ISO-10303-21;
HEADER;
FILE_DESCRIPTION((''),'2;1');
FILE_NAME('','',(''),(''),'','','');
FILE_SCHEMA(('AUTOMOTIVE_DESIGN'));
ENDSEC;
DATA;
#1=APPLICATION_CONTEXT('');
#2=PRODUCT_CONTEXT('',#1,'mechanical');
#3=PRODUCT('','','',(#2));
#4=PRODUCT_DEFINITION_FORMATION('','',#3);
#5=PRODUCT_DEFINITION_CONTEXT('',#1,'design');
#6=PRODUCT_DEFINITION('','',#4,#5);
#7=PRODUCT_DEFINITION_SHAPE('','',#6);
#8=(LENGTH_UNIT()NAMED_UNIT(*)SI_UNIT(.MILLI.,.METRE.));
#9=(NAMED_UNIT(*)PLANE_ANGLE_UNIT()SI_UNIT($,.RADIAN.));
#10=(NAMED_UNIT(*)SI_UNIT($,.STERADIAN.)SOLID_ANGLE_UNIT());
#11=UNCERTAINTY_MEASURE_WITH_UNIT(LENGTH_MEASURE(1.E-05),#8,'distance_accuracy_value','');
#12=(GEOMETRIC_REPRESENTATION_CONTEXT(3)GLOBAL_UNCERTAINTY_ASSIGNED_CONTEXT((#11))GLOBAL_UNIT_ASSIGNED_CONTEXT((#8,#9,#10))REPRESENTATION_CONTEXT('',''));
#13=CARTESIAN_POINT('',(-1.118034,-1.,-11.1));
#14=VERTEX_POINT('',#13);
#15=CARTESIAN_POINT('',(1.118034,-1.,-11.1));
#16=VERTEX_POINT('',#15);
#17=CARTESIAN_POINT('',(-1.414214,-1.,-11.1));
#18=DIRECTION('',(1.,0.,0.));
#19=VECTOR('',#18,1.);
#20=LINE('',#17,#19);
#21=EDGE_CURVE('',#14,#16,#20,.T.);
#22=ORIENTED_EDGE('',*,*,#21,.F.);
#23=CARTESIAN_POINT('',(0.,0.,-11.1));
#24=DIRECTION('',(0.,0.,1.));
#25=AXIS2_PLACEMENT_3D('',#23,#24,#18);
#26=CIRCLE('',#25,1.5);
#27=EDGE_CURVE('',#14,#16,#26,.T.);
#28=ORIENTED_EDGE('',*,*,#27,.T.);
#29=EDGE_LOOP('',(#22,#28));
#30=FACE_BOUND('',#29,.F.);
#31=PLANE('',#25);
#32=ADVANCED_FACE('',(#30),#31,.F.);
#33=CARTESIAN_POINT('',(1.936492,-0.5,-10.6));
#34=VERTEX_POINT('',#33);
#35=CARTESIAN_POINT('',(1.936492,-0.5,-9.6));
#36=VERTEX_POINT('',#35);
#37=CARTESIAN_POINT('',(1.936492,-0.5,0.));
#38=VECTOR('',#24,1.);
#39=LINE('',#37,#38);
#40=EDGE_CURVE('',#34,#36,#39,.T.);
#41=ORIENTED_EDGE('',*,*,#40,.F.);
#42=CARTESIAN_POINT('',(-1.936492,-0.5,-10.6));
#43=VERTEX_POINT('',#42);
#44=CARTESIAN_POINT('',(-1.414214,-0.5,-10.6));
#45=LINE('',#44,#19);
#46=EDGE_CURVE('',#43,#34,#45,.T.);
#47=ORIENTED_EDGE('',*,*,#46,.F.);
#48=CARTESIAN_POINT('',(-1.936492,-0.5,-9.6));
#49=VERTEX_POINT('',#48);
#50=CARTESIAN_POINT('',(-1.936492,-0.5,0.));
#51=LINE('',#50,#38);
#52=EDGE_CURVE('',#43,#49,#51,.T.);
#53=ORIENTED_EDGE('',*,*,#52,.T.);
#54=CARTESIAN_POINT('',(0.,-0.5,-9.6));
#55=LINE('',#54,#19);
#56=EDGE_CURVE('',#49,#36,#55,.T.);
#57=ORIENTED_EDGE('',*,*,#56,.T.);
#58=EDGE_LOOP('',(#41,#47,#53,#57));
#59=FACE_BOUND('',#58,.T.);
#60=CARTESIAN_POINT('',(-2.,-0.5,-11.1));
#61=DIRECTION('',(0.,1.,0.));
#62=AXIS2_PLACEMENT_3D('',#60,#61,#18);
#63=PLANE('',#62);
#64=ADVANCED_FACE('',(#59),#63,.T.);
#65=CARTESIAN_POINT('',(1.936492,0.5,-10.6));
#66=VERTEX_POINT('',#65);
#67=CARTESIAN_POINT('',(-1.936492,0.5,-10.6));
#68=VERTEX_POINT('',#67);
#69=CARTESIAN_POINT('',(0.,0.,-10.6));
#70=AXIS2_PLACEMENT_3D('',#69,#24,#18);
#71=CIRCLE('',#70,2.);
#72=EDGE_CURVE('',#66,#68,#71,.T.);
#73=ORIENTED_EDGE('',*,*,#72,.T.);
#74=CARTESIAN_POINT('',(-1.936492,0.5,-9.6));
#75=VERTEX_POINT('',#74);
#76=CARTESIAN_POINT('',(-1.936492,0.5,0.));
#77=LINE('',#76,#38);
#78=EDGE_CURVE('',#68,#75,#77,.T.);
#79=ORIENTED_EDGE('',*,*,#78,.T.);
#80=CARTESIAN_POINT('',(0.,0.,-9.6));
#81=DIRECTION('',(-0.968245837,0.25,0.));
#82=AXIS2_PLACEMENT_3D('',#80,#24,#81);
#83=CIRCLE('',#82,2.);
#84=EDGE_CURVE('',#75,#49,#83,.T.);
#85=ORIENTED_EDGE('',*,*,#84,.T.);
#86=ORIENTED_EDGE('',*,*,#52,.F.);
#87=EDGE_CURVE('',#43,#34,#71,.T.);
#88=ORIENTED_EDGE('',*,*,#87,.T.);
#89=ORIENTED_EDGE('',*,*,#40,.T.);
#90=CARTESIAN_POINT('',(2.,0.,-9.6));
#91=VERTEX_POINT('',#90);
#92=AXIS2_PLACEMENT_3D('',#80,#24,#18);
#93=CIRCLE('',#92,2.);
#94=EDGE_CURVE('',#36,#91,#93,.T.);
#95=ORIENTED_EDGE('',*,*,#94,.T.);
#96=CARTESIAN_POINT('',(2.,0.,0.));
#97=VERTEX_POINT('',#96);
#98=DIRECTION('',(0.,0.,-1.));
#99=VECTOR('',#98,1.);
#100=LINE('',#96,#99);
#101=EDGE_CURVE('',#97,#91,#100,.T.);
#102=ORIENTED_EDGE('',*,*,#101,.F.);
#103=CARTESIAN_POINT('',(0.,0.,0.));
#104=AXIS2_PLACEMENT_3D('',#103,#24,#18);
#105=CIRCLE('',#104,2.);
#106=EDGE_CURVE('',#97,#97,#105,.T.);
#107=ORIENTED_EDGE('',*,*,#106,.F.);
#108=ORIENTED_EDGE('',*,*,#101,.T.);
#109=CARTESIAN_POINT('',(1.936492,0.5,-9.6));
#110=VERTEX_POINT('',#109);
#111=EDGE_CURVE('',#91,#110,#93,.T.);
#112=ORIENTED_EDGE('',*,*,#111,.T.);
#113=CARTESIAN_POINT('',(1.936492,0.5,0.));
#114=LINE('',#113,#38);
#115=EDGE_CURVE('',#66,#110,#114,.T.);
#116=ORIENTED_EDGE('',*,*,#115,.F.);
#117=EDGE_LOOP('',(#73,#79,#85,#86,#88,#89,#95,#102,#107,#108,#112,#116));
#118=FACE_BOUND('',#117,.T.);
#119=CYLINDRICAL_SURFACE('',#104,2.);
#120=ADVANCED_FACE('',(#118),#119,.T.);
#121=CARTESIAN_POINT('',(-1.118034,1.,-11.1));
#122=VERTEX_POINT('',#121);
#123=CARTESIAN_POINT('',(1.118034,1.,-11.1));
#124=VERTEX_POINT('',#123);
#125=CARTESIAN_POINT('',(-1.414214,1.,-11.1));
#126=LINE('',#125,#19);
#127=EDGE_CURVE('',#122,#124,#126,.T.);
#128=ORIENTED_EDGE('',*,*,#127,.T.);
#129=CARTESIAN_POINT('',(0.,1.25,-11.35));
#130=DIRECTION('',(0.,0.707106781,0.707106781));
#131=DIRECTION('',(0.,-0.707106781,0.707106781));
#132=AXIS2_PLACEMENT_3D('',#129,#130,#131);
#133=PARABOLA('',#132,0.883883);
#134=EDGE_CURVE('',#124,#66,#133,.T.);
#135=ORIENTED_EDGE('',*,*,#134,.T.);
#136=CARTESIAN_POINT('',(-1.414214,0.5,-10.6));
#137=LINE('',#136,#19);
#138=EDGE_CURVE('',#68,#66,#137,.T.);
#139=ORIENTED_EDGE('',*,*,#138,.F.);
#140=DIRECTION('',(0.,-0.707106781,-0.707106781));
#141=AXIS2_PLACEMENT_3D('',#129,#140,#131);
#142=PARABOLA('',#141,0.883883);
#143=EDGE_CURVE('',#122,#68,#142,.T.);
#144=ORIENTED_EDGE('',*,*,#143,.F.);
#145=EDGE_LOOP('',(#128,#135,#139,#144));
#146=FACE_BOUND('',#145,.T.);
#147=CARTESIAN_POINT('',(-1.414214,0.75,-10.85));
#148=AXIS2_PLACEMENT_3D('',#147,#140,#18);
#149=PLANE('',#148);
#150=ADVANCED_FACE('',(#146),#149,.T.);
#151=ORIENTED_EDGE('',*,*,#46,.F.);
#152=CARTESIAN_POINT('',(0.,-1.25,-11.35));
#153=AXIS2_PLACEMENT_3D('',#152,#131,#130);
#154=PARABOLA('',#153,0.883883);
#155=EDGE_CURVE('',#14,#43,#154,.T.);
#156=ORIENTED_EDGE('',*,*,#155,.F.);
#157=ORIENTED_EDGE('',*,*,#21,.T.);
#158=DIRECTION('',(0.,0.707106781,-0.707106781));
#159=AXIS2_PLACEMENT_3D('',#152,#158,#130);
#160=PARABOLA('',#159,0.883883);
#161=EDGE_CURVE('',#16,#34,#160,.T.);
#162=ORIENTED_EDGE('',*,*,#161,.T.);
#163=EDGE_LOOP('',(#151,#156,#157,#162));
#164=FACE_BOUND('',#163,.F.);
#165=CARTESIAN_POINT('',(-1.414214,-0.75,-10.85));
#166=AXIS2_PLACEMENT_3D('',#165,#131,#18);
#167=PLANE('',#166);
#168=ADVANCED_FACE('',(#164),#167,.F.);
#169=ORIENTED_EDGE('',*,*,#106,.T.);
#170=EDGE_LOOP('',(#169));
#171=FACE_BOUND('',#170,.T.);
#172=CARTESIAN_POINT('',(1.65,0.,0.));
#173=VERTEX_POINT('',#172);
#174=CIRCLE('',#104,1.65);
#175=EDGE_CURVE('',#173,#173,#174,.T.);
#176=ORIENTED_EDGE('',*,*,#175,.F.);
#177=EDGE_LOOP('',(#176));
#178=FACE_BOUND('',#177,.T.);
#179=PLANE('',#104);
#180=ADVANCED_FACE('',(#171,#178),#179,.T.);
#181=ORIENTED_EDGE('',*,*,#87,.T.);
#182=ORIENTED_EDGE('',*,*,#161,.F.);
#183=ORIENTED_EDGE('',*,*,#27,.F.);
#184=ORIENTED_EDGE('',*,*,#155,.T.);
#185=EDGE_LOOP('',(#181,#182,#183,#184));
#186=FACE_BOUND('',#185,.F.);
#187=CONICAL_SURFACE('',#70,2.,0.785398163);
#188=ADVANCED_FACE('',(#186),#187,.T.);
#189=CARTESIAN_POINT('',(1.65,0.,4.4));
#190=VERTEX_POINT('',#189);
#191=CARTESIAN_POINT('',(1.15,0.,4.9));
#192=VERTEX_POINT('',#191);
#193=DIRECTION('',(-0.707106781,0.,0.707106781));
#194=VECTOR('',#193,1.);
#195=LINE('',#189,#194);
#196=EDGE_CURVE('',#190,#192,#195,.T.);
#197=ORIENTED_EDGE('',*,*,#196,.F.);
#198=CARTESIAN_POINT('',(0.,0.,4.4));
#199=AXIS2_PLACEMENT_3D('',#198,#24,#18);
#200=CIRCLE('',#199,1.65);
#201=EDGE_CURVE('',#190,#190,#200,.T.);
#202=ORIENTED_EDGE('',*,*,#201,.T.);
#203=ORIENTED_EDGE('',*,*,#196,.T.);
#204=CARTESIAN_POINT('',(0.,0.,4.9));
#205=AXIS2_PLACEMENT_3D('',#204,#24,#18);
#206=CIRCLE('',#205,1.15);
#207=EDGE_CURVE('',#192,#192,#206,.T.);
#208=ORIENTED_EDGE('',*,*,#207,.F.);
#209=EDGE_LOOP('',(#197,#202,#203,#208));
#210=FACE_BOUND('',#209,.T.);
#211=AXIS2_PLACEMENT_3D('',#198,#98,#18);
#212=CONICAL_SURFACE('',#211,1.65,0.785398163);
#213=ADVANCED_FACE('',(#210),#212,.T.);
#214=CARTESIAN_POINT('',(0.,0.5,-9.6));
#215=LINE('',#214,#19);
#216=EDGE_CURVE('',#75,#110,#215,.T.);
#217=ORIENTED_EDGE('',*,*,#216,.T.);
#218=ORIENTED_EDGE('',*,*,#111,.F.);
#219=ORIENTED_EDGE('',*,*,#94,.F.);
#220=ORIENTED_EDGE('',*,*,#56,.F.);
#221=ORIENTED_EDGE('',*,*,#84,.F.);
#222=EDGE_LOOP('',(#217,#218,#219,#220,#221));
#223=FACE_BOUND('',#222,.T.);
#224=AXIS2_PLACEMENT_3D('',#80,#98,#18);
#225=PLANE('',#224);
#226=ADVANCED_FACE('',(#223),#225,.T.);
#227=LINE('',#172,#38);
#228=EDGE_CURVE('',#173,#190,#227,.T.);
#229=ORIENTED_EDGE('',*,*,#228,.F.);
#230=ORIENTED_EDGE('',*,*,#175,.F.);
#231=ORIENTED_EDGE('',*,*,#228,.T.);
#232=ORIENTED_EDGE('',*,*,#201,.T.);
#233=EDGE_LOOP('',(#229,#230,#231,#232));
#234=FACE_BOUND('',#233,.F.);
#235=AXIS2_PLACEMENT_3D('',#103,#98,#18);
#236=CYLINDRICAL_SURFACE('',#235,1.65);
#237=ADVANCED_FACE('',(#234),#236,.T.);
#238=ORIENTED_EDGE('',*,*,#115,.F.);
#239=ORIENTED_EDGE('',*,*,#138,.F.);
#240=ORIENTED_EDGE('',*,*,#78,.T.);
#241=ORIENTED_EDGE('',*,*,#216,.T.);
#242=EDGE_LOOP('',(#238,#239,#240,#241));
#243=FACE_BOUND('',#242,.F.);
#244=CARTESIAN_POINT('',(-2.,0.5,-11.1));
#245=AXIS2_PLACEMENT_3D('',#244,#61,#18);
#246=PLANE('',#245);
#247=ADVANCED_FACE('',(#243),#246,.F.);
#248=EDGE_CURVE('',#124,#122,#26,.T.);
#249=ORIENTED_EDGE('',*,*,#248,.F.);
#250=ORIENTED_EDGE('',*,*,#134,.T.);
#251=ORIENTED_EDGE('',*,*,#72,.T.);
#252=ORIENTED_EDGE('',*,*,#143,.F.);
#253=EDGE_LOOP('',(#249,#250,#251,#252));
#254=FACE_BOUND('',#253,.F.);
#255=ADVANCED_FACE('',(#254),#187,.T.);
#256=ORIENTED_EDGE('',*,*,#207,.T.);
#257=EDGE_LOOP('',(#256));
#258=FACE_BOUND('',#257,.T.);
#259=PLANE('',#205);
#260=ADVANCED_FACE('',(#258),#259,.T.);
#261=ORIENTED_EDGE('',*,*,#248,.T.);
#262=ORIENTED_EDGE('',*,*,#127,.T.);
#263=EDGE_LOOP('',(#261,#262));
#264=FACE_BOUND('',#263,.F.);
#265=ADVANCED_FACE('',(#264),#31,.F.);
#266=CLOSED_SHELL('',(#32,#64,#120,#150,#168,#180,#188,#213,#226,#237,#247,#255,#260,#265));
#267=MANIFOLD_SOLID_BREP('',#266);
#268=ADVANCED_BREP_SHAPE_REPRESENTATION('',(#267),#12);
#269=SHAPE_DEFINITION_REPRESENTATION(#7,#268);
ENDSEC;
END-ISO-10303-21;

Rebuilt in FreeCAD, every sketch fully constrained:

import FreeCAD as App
import Part
import Sketcher

V = App.Vector


def edges_at(feature, points):
    """Names of the edges that pass closest to the given points."""
    edges = feature.Shape.Edges
    near = lambda p: min(range(len(edges)), key=lambda i: edges[i].distToShape(Part.Vertex(*p))[0])
    return sorted({f"Edge{near(p) + 1}" for p in points})

doc = App.newDocument("Part")
body = doc.addObject("PartDesign::Body", "Body")

sketch1 = body.newObject("Sketcher::SketchObject", "Sketch")
sketch1.AttachmentSupport = (doc.getObject("XY_Plane"), [""])
sketch1.MapMode = "FlatFace"
sketch1.addGeometry(Part.Circle(V(0, 0, 0), V(0, 0, 1), 1.6), False)
sketch1.addConstraint(Sketcher.Constraint("Coincident", 0, 3, -1, 1))
sketch1.addConstraint(Sketcher.Constraint("Diameter", 0, 3.3))
pad1 = body.newObject("PartDesign::Pad", "Pad")
pad1.Profile = sketch1
pad1.Length = 4.9

sketch2 = body.newObject("Sketcher::SketchObject", "Sketch001")
sketch2.AttachmentSupport = (doc.getObject("XY_Plane"), [""])
sketch2.MapMode = "FlatFace"
sketch2.addGeometry(Part.Circle(V(0, 0, 0), V(0, 0, 1), 2), False)
sketch2.addConstraint(Sketcher.Constraint("Coincident", 0, 3, -1, 1))
sketch2.addConstraint(Sketcher.Constraint("Diameter", 0, 4.0))
pad2 = body.newObject("PartDesign::Pad", "Pad001")
pad2.Profile = sketch2
pad2.Length = 11.1
pad2.Reversed = True
doc.recompute()

chamfer = body.newObject("PartDesign::Chamfer", "Chamfer")
chamfer.Base = (pad2, edges_at(pad2, [(-1.65, 0, 4.9), (-2, 0, -11.1)]))
chamfer.Size = 0.5

sketch3 = body.newObject("Sketcher::SketchObject", "Sketch002")
sketch3.AttachmentSupport = (doc.getObject("XY_Plane"), [""])
sketch3.MapMode = "FlatFace"
sketch3.AttachmentOffset = App.Placement(V(0, 0, -11.1), App.Rotation())
sketch3.addGeometry(Part.LineSegment(V(-2, -0.5, 0), V(-2, 0.5, 0)), False)
sketch3.addGeometry(Part.LineSegment(V(-2, 0.5, 0), V(2, 0.5, 0)), False)
sketch3.addGeometry(Part.LineSegment(V(2, 0.5, 0), V(2, -0.5, 0)), False)
sketch3.addGeometry(Part.LineSegment(V(2, -0.5, 0), V(-2, -0.5, 0)), False)
sketch3.addConstraint(Sketcher.Constraint("Coincident", 0, 2, 1, 1))
sketch3.addConstraint(Sketcher.Constraint("Coincident", 1, 2, 2, 1))
sketch3.addConstraint(Sketcher.Constraint("Coincident", 2, 2, 3, 1))
sketch3.addConstraint(Sketcher.Constraint("Coincident", 3, 2, 0, 1))
sketch3.addConstraint(Sketcher.Constraint("Vertical", 0))
sketch3.addConstraint(Sketcher.Constraint("Horizontal", 1))
sketch3.addConstraint(Sketcher.Constraint("Vertical", 2))
sketch3.addConstraint(Sketcher.Constraint("Horizontal", 3))
sketch3.addConstraint(Sketcher.Constraint("Symmetric", 0, 2, 2, 2, -1, 1))
sketch3.addConstraint(Sketcher.Constraint("DistanceX", 1, 1, 1, 2, 4.0))
sketch3.addConstraint(Sketcher.Constraint("DistanceY", 0, 1, 0, 2, 1.0))
pocket1 = body.newObject("PartDesign::Pocket", "Pocket")
pocket1.Profile = sketch3
pocket1.Length = 1.5
pocket1.Reversed = True
doc.recompute()

chamfer2 = body.newObject("PartDesign::Chamfer", "Chamfer001")
chamfer2.Base = (pocket1, edges_at(pocket1, [(0, 0.5, -11.1), (0, -0.5, -11.1)]))
chamfer2.Size = 0.5

doc.recompute()
